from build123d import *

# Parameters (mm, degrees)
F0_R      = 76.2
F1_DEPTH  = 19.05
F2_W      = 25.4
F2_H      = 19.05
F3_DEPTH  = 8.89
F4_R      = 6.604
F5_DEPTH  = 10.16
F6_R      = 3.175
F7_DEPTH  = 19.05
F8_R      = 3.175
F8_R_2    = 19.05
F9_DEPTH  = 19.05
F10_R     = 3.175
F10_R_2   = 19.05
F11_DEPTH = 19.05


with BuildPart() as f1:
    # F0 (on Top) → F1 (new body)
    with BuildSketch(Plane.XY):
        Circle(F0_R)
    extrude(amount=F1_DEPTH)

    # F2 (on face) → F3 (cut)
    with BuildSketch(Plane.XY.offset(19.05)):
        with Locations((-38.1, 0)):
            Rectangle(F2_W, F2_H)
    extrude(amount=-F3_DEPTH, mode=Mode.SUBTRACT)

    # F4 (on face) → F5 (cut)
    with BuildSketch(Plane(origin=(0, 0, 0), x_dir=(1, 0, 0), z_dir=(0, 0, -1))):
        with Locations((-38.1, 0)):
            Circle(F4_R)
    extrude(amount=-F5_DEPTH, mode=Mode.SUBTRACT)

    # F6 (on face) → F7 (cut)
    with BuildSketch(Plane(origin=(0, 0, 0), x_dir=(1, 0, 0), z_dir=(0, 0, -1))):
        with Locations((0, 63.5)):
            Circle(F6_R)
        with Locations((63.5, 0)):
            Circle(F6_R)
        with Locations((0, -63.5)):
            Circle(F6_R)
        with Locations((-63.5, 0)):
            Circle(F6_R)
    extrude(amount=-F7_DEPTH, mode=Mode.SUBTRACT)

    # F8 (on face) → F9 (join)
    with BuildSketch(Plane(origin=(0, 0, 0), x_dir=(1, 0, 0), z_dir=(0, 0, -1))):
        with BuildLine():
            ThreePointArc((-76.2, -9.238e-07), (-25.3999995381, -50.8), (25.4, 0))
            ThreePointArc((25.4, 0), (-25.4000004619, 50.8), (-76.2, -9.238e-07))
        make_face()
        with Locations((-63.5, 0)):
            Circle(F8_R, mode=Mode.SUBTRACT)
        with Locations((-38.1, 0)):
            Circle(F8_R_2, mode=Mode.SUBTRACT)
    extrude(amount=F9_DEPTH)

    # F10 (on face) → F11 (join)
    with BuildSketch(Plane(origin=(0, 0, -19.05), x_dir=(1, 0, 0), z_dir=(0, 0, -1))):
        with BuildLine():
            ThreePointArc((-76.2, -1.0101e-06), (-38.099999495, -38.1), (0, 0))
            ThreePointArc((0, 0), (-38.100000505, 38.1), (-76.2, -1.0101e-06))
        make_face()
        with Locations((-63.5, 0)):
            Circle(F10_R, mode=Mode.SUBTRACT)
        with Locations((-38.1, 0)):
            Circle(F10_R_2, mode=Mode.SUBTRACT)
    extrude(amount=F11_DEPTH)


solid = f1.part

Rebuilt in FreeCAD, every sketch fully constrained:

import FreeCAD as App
import Part
import Sketcher
from FreeCAD import Vector
Q = App.Units.Quantity

doc = App.newDocument("Part")
body = doc.addObject("PartDesign::Body", "Body")

sketch1 = doc.addObject("Sketcher::SketchObject", "Sketch")
body.addObject(sketch1)
sketch1.AttachmentSupport = (doc.XY_Plane, [""])
sketch1.MapMode = "FlatFace"
sketch1.addGeometry(Part.Circle(Vector(0, 0, 0), Vector(0, 0, 1), 76), False)
sketch1.addConstraint([
    Sketcher.Constraint("Coincident", 0, 3, -1, 1),
    Sketcher.Constraint("Diameter", 0, Q("6 in")),
])
pad1 = doc.addObject("PartDesign::Pad", "Pad")
body.addObject(pad1)
pad1.Profile = sketch1
pad1.Length = Q("0.75 in")

sketch2 = doc.addObject("Sketcher::SketchObject", "Sketch001")
body.addObject(sketch2)
sketch2.AttachmentSupport = (doc.XY_Plane, [""])
sketch2.MapMode = "FlatFace"
sketch2.AttachmentOffset = App.Placement(Vector(0, 0, 0.75 * 25.4), App.Rotation())
sketch2.addGeometry([
    Part.LineSegment(Vector(-51, 10, 0), Vector(-51, -10, 0)),
    Part.LineSegment(Vector(-51, -10, 0), Vector(-25, -10, 0)),
    Part.LineSegment(Vector(-25, -10, 0), Vector(-25, 10, 0)),
    Part.LineSegment(Vector(-25, 10, 0), Vector(-51, 10, 0)),
], False)
sketch2.addConstraint([
    Sketcher.Constraint("Coincident", 0, 2, 1, 1),
    Sketcher.Constraint("Coincident", 1, 2, 2, 1),
    Sketcher.Constraint("Coincident", 2, 2, 3, 1),
    Sketcher.Constraint("Coincident", 3, 2, 0, 1),
    Sketcher.Constraint("Vertical", 0),
    Sketcher.Constraint("Horizontal", 1),
    Sketcher.Constraint("Vertical", 2),
    Sketcher.Constraint("Horizontal", 3),
    Sketcher.Constraint("DistanceX", 1, 1, 1, 2, Q("1 in")),
    Sketcher.Constraint("DistanceX", 0, 2, -1, 1, Q("2 in")),
    Sketcher.Constraint("DistanceY", 0, 2, 0, 1, Q("0.75 in")),
    Sketcher.Constraint("DistanceY", 0, 2, -1, 1, Q("0.375 in")),
])
pocket1 = doc.addObject("PartDesign::Pocket", "Pocket")
body.addObject(pocket1)
pocket1.Profile = sketch2
pocket1.Length = Q("0.35 in")

sketch3 = doc.addObject("Sketcher::SketchObject", "Sketch002")
body.addObject(sketch3)
sketch3.AttachmentSupport = (doc.XY_Plane, [""])
sketch3.MapMode = "FlatFace"
sketch3.addGeometry(Part.Circle(Vector(-38, 0, 0), Vector(0, 0, 1), 7), False)
sketch3.addConstraint([
    Sketcher.Constraint("PointOnObject", 0, 3, -1),
    Sketcher.Constraint("Diameter", 0, Q("0.52 in")),
    Sketcher.Constraint("DistanceX", 0, 3, -1, 1, Q("1.5 in")),
])
pocket2 = doc.addObject("PartDesign::Pocket", "Pocket001")
body.addObject(pocket2)
pocket2.Profile = sketch3
pocket2.Length = Q("0.4 in")
pocket2.Reversed = True

sketch4 = doc.addObject("Sketcher::SketchObject", "Sketch003")
body.addObject(sketch4)
sketch4.AttachmentSupport = (doc.XY_Plane, [""])
sketch4.MapMode = "FlatFace"
sketch4.addGeometry([
    Part.Circle(Vector(0, -63.5, 0), Vector(0, 0, 1), 3.2),
    Part.Circle(Vector(63.5, 0, 0), Vector(0, 0, 1), 3.2),
    Part.Circle(Vector(0, 63.5, 0), Vector(0, 0, 1), 3.2),
    Part.Circle(Vector(-63.5, 0, 0), Vector(0, 0, 1), 3.2),
], False)
sketch4.addConstraint([
    Sketcher.Constraint("Equal", 0, 1),
    Sketcher.Constraint("Equal", 1, 2),
    Sketcher.Constraint("Equal", 2, 3),
    Sketcher.Constraint("Symmetric", 0, 3, 2, 3, -1, 1),
    Sketcher.Constraint("Symmetric", 1, 3, 3, 3, -1, 1),
    Sketcher.Constraint("PointOnObject", 0, 3, -2),
    Sketcher.Constraint("PointOnObject", 1, 3, -1),
    Sketcher.Constraint("Diameter", 0, Q("0.25 in")),
    Sketcher.Constraint("DistanceY", 0, 3, 2, 3, Q("5 in")),
    Sketcher.Constraint("DistanceX", 3, 3, 1, 3, Q("5 in")),
])
pocket3 = doc.addObject("PartDesign::Pocket", "Pocket002")
body.addObject(pocket3)
pocket3.Profile = sketch4
pocket3.Length = Q("0.75 in")
pocket3.Reversed = True

sketch5 = doc.addObject("Sketcher::SketchObject", "Sketch004")
body.addObject(sketch5)
sketch5.AttachmentSupport = (doc.XY_Plane, [""])
sketch5.MapMode = "FlatFace"
sketch5.addGeometry([
    Part.Circle(Vector(-25.4, 0, 0), Vector(0, 0, 1), 50.8),
    Part.Circle(Vector(-63.5, 0, 0), Vector(0, 0, 1), 3.2),
    Part.Circle(Vector(-38.1, 0, 0), Vector(0, 0, 1), 19.1),
], False)
sketch5.addConstraint([
    Sketcher.Constraint("PointOnObject", 0, 3, -1),
    Sketcher.Constraint("PointOnObject", 1, 3, -1),
    Sketcher.Constraint("PointOnObject", 2, 3, -1),
    Sketcher.Constraint("Diameter", 0, Q("4 in")),
    Sketcher.Constraint("Diameter", 2, Q("1.5 in")),
    Sketcher.Constraint("Diameter", 1, Q("0.25 in")),
    Sketcher.Constraint("DistanceX", 0, 3, -1, 1, Q("1 in")),
    Sketcher.Constraint("DistanceX", 1, 3, 2, 3, Q("1 in")),
    Sketcher.Constraint("DistanceX", 1, 3, -1, 1, Q("2.5 in")),
])
pad2 = doc.addObject("PartDesign::Pad", "Pad001")
body.addObject(pad2)
pad2.Profile = sketch5
pad2.Length = Q("0.75 in")
pad2.Reversed = True

sketch6 = doc.addObject("Sketcher::SketchObject", "Sketch005")
body.addObject(sketch6)
sketch6.AttachmentSupport = (doc.XY_Plane, [""])
sketch6.MapMode = "FlatFace"
sketch6.AttachmentOffset = App.Placement(Vector(0, 0, -0.75 * 25.4), App.Rotation())
sketch6.addGeometry([
    Part.Circle(Vector(-38.1, 0, 0), Vector(0, 0, 1), 38.1),
    Part.Circle(Vector(-63.5, 0, 0), Vector(0, 0, 1), 3.2),
    Part.Circle(Vector(-38.1, 0, 0), Vector(0, 0, 1), 19.1),
], False)
sketch6.addConstraint([
    Sketcher.Constraint("Coincident", 2, 3, 0, 3),
    Sketcher.Constraint("PointOnObject", 0, 3, -1),
    Sketcher.Constraint("PointOnObject", 1, 3, -1),
    Sketcher.Constraint("Diameter", 0, Q("3 in")),
    Sketcher.Constraint("Diameter", 2, Q("1.5 in")),
    Sketcher.Constraint("Diameter", 1, Q("0.25 in")),
    Sketcher.Constraint("DistanceX", 1, 3, 0, 3, Q("1 in")),
    Sketcher.Constraint("DistanceX", 0, 3, -1, 1, Q("1.5 in")),
])
pad3 = doc.addObject("PartDesign::Pad", "Pad002")
body.addObject(pad3)
pad3.Profile = sketch6
pad3.Length = Q("0.75 in")
pad3.Reversed = True

doc.recompute()
